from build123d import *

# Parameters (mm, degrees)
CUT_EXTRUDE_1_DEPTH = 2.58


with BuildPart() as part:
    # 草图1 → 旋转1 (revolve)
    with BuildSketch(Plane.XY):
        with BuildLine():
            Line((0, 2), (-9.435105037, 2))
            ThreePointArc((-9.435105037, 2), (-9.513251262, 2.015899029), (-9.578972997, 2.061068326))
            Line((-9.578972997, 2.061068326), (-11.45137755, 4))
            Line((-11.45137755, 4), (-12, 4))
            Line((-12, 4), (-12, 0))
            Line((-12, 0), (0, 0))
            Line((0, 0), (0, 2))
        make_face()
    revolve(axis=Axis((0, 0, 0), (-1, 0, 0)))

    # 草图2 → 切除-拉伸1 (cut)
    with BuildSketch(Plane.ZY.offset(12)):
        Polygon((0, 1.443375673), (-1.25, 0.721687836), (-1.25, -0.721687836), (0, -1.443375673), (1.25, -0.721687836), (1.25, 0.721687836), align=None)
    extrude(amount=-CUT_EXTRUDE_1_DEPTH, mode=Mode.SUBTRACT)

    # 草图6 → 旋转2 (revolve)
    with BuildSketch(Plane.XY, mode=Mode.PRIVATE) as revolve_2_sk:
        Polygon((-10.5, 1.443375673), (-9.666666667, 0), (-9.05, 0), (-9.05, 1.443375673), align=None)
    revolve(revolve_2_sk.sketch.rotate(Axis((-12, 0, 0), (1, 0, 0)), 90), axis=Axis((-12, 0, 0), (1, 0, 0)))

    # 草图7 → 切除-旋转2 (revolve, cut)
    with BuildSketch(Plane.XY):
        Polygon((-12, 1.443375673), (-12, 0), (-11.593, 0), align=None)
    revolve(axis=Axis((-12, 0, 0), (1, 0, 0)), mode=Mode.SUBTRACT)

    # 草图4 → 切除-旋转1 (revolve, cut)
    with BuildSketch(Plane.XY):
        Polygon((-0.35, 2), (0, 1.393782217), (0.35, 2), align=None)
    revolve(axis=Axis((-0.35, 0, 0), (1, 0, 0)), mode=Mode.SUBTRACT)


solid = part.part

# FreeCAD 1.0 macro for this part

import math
import FreeCAD as App
import Part
import Sketcher
from FreeCAD import Vector
Q = App.Units.Quantity

doc = App.newDocument("Part")
body = doc.addObject("PartDesign::Body", "Body")

sketch1 = body.newObject("Sketcher::SketchObject", "Sketch")
sketch1.AttachmentSupport = (doc.getObject("XY_Plane"), [""])
sketch1.MapMode = "FlatFace"
sketch1.addGeometry([
    Part.LineSegment(Vector(0, 2, 0), Vector(-9.435105, 2, 0)),
    Part.ArcOfCircle(Part.Circle(Vector(-9.435105, 2.2, 0), Vector(0, 0, 1), 0.2), math.radians(-136), math.radians(-90)),
    Part.LineSegment(Vector(-9.578973, 2.061068, 0), Vector(-11.451378, 4, 0)),
    Part.LineSegment(Vector(-11.451378, 4, 0), Vector(-12, 4, 0)),
    Part.LineSegment(Vector(-12, 4, 0), Vector(-12, 0, 0)),
    Part.LineSegment(Vector(-12, 0, 0), Vector(0, 0, 0)),
    Part.LineSegment(Vector(0, 0, 0), Vector(0, 2, 0)),
], False)
sketch1.addConstraint([
    Sketcher.Constraint("Tangent", 0, 2, 1, 2),
    Sketcher.Constraint("Tangent", 1, 1, 2, 1),
    Sketcher.Constraint("Coincident", 2, 2, 3, 1),
    Sketcher.Constraint("Coincident", 3, 2, 4, 1),
    Sketcher.Constraint("Coincident", 4, 2, 5, 1),
    Sketcher.Constraint("Coincident", 5, 2, 6, 1),
    Sketcher.Constraint("Coincident", 6, 2, 0, 1),
    Sketcher.Constraint("Horizontal", 0),
    Sketcher.Constraint("Horizontal", 3),
    Sketcher.Constraint("Vertical", 4),
    Sketcher.Constraint("Horizontal", 5),
    Sketcher.Constraint("Vertical", 6),
    Sketcher.Constraint("Coincident", 5, 2, -1, 1),
    Sketcher.Constraint("Radius", 1, Q("0.2 mm")),
    Sketcher.Constraint("DistanceX", 5, 1, 5, 2, Q("12 mm")),
    Sketcher.Constraint("DistanceY", 4, 2, 4, 1, Q("4 mm")),
    Sketcher.Constraint("DistanceY", 6, 1, 6, 2, Q("2 mm")),
    Sketcher.Constraint("Angle", 2, Q("134 deg")),
    Sketcher.Constraint("DistanceX", 0, 2, 0, 1, Q("9.435105 mm")),
])
revolution = body.newObject("PartDesign::Revolution", "Revolution")
revolution.Profile = sketch1
revolution.ReferenceAxis = (sketch1, ["H_Axis"])
revolution.Angle = 360

sketch2 = body.newObject("Sketcher::SketchObject", "Sketch001")
sketch2.AttachmentSupport = (doc.getObject("YZ_Plane"), [""])
sketch2.MapMode = "FlatFace"
sketch2.AttachmentOffset = App.Placement(Vector(0, 0, -12), App.Rotation())
sketch2.addGeometry([
    Part.LineSegment(Vector(1.443376, 0, 0), Vector(0.721688, -1.25, 0)),
    Part.LineSegment(Vector(0.721688, -1.25, 0), Vector(-0.721688, -1.25, 0)),
    Part.LineSegment(Vector(-0.721688, -1.25, 0), Vector(-1.443376, 0, 0)),
    Part.LineSegment(Vector(-1.443376, 0, 0), Vector(-0.721688, 1.25, 0)),
    Part.LineSegment(Vector(-0.721688, 1.25, 0), Vector(0.721688, 1.25, 0)),
    Part.LineSegment(Vector(0.721688, 1.25, 0), Vector(1.443376, 0, 0)),
], False)
sketch2.addConstraint([
    Sketcher.Constraint("Coincident", 0, 2, 1, 1),
    Sketcher.Constraint("Coincident", 1, 2, 2, 1),
    Sketcher.Constraint("Coincident", 2, 2, 3, 1),
    Sketcher.Constraint("Coincident", 3, 2, 4, 1),
    Sketcher.Constraint("Coincident", 4, 2, 5, 1),
    Sketcher.Constraint("Coincident", 5, 2, 0, 1),
    Sketcher.Constraint("Horizontal", 1),
    Sketcher.Constraint("Horizontal", 4),
    Sketcher.Constraint("Symmetric", 0, 2, 3, 2, -1, 1),
    Sketcher.Constraint("Symmetric", 2, 2, 5, 2, -1, 1),
    Sketcher.Constraint("PointOnObject", 2, 2, -1),
    Sketcher.Constraint("Parallel", 2, 5),
    Sketcher.Constraint("Vertical", 1, 2, 3, 2),
    Sketcher.Constraint("Angle", 0, Q("-120 deg")),
    Sketcher.Constraint("DistanceY", 1, 2, 3, 2, Q("2.5 mm")),
    Sketcher.Constraint("DistanceX", 1, 2, 1, 1, Q("1.443376 mm")),
])
pocket1 = body.newObject("PartDesign::Pocket", "Pocket")
pocket1.Profile = sketch2
pocket1.Length = 2.58
pocket1.Reversed = True

sketch3 = body.newObject("Sketcher::SketchObject", "Sketch002")
sketch3.AttachmentSupport = (doc.getObject("XY_Plane"), [""])
sketch3.MapMode = "FlatFace"
sketch3.addGeometry([
    Part.LineSegment(Vector(-10.5, 1.443376, 0), Vector(-9.666667, 0, 0)),
    Part.LineSegment(Vector(-9.666667, 0, 0), Vector(-9.05, 0, 0)),
    Part.LineSegment(Vector(-9.05, 0, 0), Vector(-9.05, 1.443376, 0)),
    Part.LineSegment(Vector(-9.05, 1.443376, 0), Vector(-10.5, 1.443376, 0)),
], False)
sketch3.addConstraint([
    Sketcher.Constraint("Coincident", 0, 2, 1, 1),
    Sketcher.Constraint("Coincident", 1, 2, 2, 1),
    Sketcher.Constraint("Coincident", 2, 2, 3, 1),
    Sketcher.Constraint("Coincident", 3, 2, 0, 1),
    Sketcher.Constraint("Horizontal", 1),
    Sketcher.Constraint("Vertical", 2),
    Sketcher.Constraint("Horizontal", 3),
    Sketcher.Constraint("PointOnObject", 0, 2, -1),
    Sketcher.Constraint("Angle", 0, Q("-60 deg")),
    Sketcher.Constraint("DistanceX", 3, 2, 3, 1, Q("1.45 mm")),
    Sketcher.Constraint("DistanceX", 3, 2, -1, 1, Q("10.5 mm")),
    Sketcher.Constraint("DistanceX", 1, 1, 1, 2, Q("0.616667 mm")),
])
revolution2 = body.newObject("PartDesign::Revolution", "Revolution001")
revolution2.Profile = sketch3
revolution2.ReferenceAxis = (sketch3, ["H_Axis"])
revolution2.Angle = 360

sketch4 = body.newObject("Sketcher::SketchObject", "Sketch003")
sketch4.AttachmentSupport = (doc.getObject("XY_Plane"), [""])
sketch4.MapMode = "FlatFace"
sketch4.addGeometry([
    Part.LineSegment(Vector(-12, 1.443376, 0), Vector(-12, 0, 0)),
    Part.LineSegment(Vector(-12, 0, 0), Vector(-11.593, 0, 0)),
    Part.LineSegment(Vector(-11.593, 0, 0), Vector(-12, 1.443376, 0)),
], False)
sketch4.addConstraint([
    Sketcher.Constraint("Coincident", 0, 2, 1, 1),
    Sketcher.Constraint("Coincident", 1, 2, 2, 1),
    Sketcher.Constraint("Coincident", 2, 2, 0, 1),
    Sketcher.Constraint("Vertical", 0),
    Sketcher.Constraint("Horizontal", 1),
    Sketcher.Constraint("PointOnObject", 0, 2, -1),
    Sketcher.Constraint("DistanceX", 0, 2, -1, 1, Q("12 mm")),
    Sketcher.Constraint("DistanceX", 1, 1, 1, 2, Q("0.407 mm")),
    Sketcher.Constraint("Distance", 2, Q("1.499661 mm")),
])
groove = body.newObject("PartDesign::Groove", "Groove")
groove.Profile = sketch4
groove.ReferenceAxis = (sketch4, ["H_Axis"])
groove.Angle = 360

sketch5 = body.newObject("Sketcher::SketchObject", "Sketch004")
sketch5.AttachmentSupport = (doc.getObject("XY_Plane"), [""])
sketch5.MapMode = "FlatFace"
sketch5.addGeometry([
    Part.LineSegment(Vector(-0.35, 2, 0), Vector(0, 1.393782, 0)),
    Part.LineSegment(Vector(0, 1.393782, 0), Vector(0.35, 2, 0)),
    Part.LineSegment(Vector(0.35, 2, 0), Vector(-0.35, 2, 0)),
], False)
sketch5.addConstraint([
    Sketcher.Constraint("Coincident", 0, 2, 1, 1),
    Sketcher.Constraint("Coincident", 1, 2, 2, 1),
    Sketcher.Constraint("Coincident", 2, 2, 0, 1),
    Sketcher.Constraint("Horizontal", 2),
    Sketcher.Constraint("PointOnObject", 0, 2, -2),
    Sketcher.Constraint("Equal", 0, 1),
    Sketcher.Constraint("Angle", 0, Q("-60 deg")),
    Sketcher.Constraint("DistanceX", 2, 2, 2, 1, Q("0.7 mm")),
    Sketcher.Constraint("DistanceY", -1, 1, 1, 2, Q("2 mm")),
])
groove2 = body.newObject("PartDesign::Groove", "Groove001")
groove2.Profile = sketch5
groove2.ReferenceAxis = (sketch5, ["H_Axis"])
groove2.Angle = 360

doc.recompute()
